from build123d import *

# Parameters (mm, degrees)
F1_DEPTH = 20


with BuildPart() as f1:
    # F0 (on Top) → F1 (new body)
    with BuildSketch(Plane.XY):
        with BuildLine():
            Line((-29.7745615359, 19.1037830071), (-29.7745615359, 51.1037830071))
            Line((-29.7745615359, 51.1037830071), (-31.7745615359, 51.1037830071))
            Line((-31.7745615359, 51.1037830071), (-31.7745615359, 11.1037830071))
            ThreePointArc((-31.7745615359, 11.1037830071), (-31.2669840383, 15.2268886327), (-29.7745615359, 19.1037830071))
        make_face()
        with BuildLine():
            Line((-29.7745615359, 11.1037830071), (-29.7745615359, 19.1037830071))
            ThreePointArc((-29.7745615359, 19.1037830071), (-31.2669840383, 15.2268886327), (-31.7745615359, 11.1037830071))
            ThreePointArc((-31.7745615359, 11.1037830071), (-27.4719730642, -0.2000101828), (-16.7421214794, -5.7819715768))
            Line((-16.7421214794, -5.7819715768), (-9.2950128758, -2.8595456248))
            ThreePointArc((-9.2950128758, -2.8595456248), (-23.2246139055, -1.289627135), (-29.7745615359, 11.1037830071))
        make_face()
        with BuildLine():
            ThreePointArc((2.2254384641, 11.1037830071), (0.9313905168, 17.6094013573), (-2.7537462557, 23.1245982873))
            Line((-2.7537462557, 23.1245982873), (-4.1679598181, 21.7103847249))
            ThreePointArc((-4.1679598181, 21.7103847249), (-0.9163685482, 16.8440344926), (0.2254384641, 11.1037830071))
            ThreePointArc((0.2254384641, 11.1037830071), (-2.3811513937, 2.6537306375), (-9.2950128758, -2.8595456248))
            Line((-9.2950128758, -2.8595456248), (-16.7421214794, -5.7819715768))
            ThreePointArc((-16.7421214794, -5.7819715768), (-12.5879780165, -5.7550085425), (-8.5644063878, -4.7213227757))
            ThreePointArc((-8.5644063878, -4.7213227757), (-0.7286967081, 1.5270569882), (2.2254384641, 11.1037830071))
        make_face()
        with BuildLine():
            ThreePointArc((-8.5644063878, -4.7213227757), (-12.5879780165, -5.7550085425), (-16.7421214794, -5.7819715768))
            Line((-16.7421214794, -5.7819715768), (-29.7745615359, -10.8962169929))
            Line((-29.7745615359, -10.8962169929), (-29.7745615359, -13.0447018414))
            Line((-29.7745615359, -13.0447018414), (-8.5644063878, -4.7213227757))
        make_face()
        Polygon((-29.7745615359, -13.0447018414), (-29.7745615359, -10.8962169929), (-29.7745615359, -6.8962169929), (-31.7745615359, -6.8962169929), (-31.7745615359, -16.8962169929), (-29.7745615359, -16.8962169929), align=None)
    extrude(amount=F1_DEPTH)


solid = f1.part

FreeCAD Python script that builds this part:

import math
import FreeCAD as App
import Part
import Sketcher
from FreeCAD import Vector
Q = App.Units.Quantity

doc = App.newDocument("Part")
body = doc.addObject("PartDesign::Body", "Body")

# Sketch on XY plane
sketch1 = doc.addObject("Sketcher::SketchObject", "Sketch")
body.addObject(sketch1)
sketch1.AttachmentSupport = (doc.XY_Plane, [""])
sketch1.MapMode = "FlatFace"
sketch1.addGeometry(Part.LineSegment(Vector(-29.8, 51.1, 0), Vector(-31.8, 51.1, 0)), False)
sketch1.addGeometry(Part.LineSegment(Vector(-31.8, 51.1, 0), Vector(-31.8, 11.1, 0)), False)
sketch1.addGeometry(Part.ArcOfCircle(Part.Circle(Vector(-14.8, 11.1, 0), Vector(0, 0, 1), 17), math.radians(180), math.radians(263)), False)
sketch1.addGeometry(Part.LineSegment(Vector(-16.7, -5.8, 0), Vector(-29.8, -10.9, 0)), False)
sketch1.addGeometry(Part.LineSegment(Vector(-29.8, -10.9, 0), Vector(-29.8, -6.9, 0)), False)
sketch1.addGeometry(Part.LineSegment(Vector(-29.8, -6.9, 0), Vector(-31.8, -6.9, 0)), False)
sketch1.addGeometry(Part.LineSegment(Vector(-31.8, -6.9, 0), Vector(-31.8, -16.9, 0)), False)
sketch1.addGeometry(Part.LineSegment(Vector(-31.8, -16.9, 0), Vector(-29.8, -16.9, 0)), False)
sketch1.addGeometry(Part.LineSegment(Vector(-29.8, -16.9, 0), Vector(-29.8, -13, 0)), False)
sketch1.addGeometry(Part.LineSegment(Vector(-29.8, -13, 0), Vector(-8.6, -4.7, 0)), False)
sketch1.addGeometry(Part.ArcOfCircle(Part.Circle(Vector(-14.8, 11.1, 0), Vector(0, 0, 1), 17), math.radians(-69), math.radians(0)), False)
sketch1.addGeometry(Part.ArcOfCircle(Part.Circle(Vector(-14.8, 11.1, 0), Vector(0, 0, 1), 17), math.radians(0), math.radians(45)), False)
sketch1.addGeometry(Part.LineSegment(Vector(-2.8, 23.1, 0), Vector(-4.2, 21.7, 0)), False)
sketch1.addGeometry(Part.ArcOfCircle(Part.Circle(Vector(-14.8, 11.1, 0), Vector(0, 0, 1), 15), math.radians(0), math.radians(45)), False)
sketch1.addGeometry(Part.ArcOfCircle(Part.Circle(Vector(-14.8, 11.1, 0), Vector(0, 0, 1), 15), math.radians(-69), math.radians(0)), False)
sketch1.addGeometry(Part.ArcOfCircle(Part.Circle(Vector(-14.8, 11.1, 0), Vector(0, 0, 1), 15), math.radians(180), math.radians(291)), False)
sketch1.addGeometry(Part.LineSegment(Vector(-29.8, 11.1, 0), Vector(-29.8, 51.1, 0)), False)
sketch1.addConstraint(Sketcher.Constraint("Coincident", 0, 2, 1, 1))
sketch1.addConstraint(Sketcher.Constraint("Tangent", 1, 2, 2, 1))
sketch1.addConstraint(Sketcher.Constraint("Coincident", 2, 2, 3, 1))
sketch1.addConstraint(Sketcher.Constraint("Coincident", 3, 2, 4, 1))
sketch1.addConstraint(Sketcher.Constraint("Coincident", 4, 2, 5, 1))
sketch1.addConstraint(Sketcher.Constraint("Coincident", 5, 2, 6, 1))
sketch1.addConstraint(Sketcher.Constraint("Coincident", 6, 2, 7, 1))
sketch1.addConstraint(Sketcher.Constraint("Coincident", 7, 2, 8, 1))
sketch1.addConstraint(Sketcher.Constraint("Coincident", 8, 2, 9, 1))
sketch1.addConstraint(Sketcher.Constraint("Tangent", 9, 2, 10, 1))
sketch1.addConstraint(Sketcher.Constraint("Tangent", 10, 2, 11, 1))
sketch1.addConstraint(Sketcher.Constraint("Coincident", 11, 2, 12, 1))
sketch1.addConstraint(Sketcher.Constraint("Coincident", 12, 2, 13, 2))
sketch1.addConstraint(Sketcher.Constraint("Tangent", 13, 1, 14, 2))
sketch1.addConstraint(Sketcher.Constraint("Tangent", 14, 1, 15, 2))
sketch1.addConstraint(Sketcher.Constraint("Tangent", 15, 1, 16, 1))
sketch1.addConstraint(Sketcher.Constraint("Coincident", 16, 2, 0, 1))
sketch1.addConstraint(Sketcher.Constraint("Horizontal", 0))
sketch1.addConstraint(Sketcher.Constraint("Vertical", 1))
sketch1.addConstraint(Sketcher.Constraint("Vertical", 4))
sketch1.addConstraint(Sketcher.Constraint("Horizontal", 5))
sketch1.addConstraint(Sketcher.Constraint("Vertical", 6))
sketch1.addConstraint(Sketcher.Constraint("Horizontal", 7))
sketch1.addConstraint(Sketcher.Constraint("Vertical", 8))
sketch1.addConstraint(Sketcher.Constraint("Vertical", 16))
sketch1.addConstraint(Sketcher.Constraint("Coincident", 10, 3, 2, 3))
sketch1.addConstraint(Sketcher.Constraint("Coincident", 13, 3, 2, 3))
sketch1.addConstraint(Sketcher.Constraint("Coincident", 15, 3, 2, 3))
sketch1.addConstraint(Sketcher.Constraint("Equal", 2, 10))
sketch1.addConstraint(Sketcher.Constraint("Equal", 10, 11))
sketch1.addConstraint(Sketcher.Constraint("Parallel", 3, 9))
sketch1.addConstraint(Sketcher.Constraint("Horizontal", 1, 2, 10, 2))
sketch1.addConstraint(Sketcher.Constraint("Horizontal", 10, 2, 13, 1))
sketch1.addConstraint(Sketcher.Constraint("Vertical", 1, 2, 5, 2))
sketch1.addConstraint(Sketcher.Constraint("Vertical", 4, 2, 7, 2))
sketch1.addConstraint(Sketcher.Constraint("Vertical", 8, 2, 15, 1))
sketch1.addConstraint(Sketcher.Constraint("Radius", 2, Q("17 mm")))
sketch1.addConstraint(Sketcher.Constraint("Radius", 13, Q("15 mm")))
sketch1.addConstraint(Sketcher.Constraint("DistanceY", 1, 2, 1, 1, Q("40 mm")))
sketch1.addConstraint(Sketcher.Constraint("DistanceY", 4, 1, 4, 2, Q("4 mm")))
sketch1.addConstraint(Sketcher.Constraint("DistanceY", 6, 2, 6, 1, Q("10 mm")))
sketch1.addConstraint(Sketcher.Constraint("Angle", 12, Q("-135 deg")))
sketch1.addConstraint(Sketcher.Constraint("Distance", 3, Q("14 mm")))
sketch1.addConstraint(Sketcher.Constraint("DistanceY", 3, 2, 1, 2, Q("22 mm")))
sketch1.addConstraint(Sketcher.Constraint("DistanceY", 8, 2, -1, 1, Q("13.044702 mm")))
sketch1.addConstraint(Sketcher.Constraint("DistanceY", -1, 1, 11, 2, Q("23.124598 mm")))
sketch1.addConstraint(Sketcher.Constraint("DistanceX", 2, 3, -1, 1, Q("14.774562 mm")))
sketch1.addConstraint(Sketcher.Constraint("DistanceX", 2, 2, 14, 1, Q("7.447109 mm")))
pad1 = doc.addObject("PartDesign::Pad", "Pad")
body.addObject(pad1)
pad1.Profile = sketch1
pad1.Length = 20

doc.recompute()
